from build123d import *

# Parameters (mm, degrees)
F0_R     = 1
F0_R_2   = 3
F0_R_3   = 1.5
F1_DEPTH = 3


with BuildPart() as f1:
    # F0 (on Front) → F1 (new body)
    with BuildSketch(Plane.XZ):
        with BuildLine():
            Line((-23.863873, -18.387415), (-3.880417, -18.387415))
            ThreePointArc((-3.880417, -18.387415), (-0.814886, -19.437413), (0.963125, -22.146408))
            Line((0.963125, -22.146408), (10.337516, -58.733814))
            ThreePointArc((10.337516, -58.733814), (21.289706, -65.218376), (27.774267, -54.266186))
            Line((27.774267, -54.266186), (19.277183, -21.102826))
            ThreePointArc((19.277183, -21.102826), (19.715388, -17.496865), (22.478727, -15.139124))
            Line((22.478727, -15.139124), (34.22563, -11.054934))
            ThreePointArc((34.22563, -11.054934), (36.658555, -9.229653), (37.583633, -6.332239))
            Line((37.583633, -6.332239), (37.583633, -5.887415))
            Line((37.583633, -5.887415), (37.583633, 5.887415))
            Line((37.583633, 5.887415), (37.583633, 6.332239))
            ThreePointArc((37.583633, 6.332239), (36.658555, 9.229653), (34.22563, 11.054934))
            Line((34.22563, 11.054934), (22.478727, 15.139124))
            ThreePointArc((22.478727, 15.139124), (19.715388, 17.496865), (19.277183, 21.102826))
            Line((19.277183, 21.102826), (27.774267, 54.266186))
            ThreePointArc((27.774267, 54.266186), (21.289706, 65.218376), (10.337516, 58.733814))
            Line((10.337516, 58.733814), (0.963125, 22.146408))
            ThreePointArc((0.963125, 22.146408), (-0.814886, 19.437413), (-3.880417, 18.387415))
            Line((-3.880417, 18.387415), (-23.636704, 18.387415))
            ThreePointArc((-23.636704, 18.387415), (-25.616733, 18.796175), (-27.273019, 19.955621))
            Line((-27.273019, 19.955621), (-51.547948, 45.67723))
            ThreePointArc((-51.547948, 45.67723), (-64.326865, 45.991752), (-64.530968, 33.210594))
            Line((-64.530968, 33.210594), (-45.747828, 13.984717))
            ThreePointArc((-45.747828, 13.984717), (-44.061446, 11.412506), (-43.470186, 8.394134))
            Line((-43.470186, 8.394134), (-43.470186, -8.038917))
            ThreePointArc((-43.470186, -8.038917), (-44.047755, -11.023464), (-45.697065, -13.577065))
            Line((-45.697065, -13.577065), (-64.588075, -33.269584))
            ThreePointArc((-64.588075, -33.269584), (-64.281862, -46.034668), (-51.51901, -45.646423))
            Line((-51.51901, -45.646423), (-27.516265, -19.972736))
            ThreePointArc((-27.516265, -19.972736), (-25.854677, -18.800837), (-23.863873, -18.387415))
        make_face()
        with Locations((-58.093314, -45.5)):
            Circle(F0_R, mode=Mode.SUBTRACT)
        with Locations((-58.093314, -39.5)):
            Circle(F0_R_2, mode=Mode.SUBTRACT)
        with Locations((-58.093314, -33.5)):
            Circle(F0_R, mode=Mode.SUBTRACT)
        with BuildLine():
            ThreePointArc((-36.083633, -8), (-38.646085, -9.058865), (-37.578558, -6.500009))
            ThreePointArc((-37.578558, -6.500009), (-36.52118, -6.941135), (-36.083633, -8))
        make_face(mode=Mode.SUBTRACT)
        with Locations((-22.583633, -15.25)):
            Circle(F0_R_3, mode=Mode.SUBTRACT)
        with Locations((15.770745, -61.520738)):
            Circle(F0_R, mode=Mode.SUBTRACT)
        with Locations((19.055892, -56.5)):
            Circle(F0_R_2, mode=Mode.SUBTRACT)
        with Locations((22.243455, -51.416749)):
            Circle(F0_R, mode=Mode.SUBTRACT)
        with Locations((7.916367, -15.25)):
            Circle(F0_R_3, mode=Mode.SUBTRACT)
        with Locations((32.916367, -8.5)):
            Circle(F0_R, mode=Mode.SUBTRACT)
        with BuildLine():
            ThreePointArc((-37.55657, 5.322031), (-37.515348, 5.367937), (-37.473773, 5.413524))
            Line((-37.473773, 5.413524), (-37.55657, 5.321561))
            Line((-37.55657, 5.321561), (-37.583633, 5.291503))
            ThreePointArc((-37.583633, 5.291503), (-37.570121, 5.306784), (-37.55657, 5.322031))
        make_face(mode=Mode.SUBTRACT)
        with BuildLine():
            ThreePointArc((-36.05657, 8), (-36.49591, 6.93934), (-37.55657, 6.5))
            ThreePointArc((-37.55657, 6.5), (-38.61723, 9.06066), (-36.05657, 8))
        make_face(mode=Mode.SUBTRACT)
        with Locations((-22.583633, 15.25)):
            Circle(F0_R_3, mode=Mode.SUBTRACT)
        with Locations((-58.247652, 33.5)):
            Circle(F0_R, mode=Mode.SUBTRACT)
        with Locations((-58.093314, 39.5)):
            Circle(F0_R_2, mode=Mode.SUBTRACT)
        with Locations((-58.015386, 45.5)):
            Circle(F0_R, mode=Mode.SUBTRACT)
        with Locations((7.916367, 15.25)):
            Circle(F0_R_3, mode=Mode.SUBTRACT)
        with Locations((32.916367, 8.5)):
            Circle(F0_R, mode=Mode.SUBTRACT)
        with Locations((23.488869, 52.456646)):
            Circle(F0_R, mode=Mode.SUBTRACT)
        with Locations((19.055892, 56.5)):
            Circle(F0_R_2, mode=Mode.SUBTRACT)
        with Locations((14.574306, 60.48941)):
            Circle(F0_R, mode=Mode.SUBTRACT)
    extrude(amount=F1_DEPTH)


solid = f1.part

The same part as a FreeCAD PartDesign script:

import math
import FreeCAD as App
import Part
import Sketcher

doc = App.newDocument("Part")
body = doc.addObject("PartDesign::Body", "Body")

# Sketch on XZ plane
sketch1 = doc.addObject("Sketcher::SketchObject", "Sketch")
body.addObject(sketch1)
sketch1.AttachmentSupport = (doc.XZ_Plane, [""])
sketch1.MapMode = "FlatFace"
sketch1.addGeometry(Part.LineSegment(App.Vector(-23.863873, -18.387415, 0), App.Vector(-3.880417, -18.387415, 0)), False)
sketch1.addGeometry(Part.ArcOfCircle(Part.Circle(App.Vector(-3.880418, -23.387416, 0), App.Vector(0, 0, 1), 5.000001), math.radians(14.371113), math.radians(89.999989)), False)
sketch1.addGeometry(Part.LineSegment(App.Vector(0.963125, -22.146408, 0), App.Vector(10.337516, -58.733814, 0)), False)
sketch1.addGeometry(Part.ArcOfCircle(Part.Circle(App.Vector(19.055892, -56.500001, 0), App.Vector(0, 0, 1), 9), math.radians(-165.628889), math.radians(14.371119)), False)
sketch1.addGeometry(Part.LineSegment(App.Vector(27.774267, -54.266186, 0), App.Vector(19.277183, -21.102826, 0)), False)
sketch1.addGeometry(Part.ArcOfCircle(Part.Circle(App.Vector(24.120725, -19.861818, 0), App.Vector(0, 0, 1), 5), math.radians(109.171669), math.radians(194.371112)), False)
sketch1.addGeometry(Part.LineSegment(App.Vector(22.478727, -15.139124, 0), App.Vector(34.22563, -11.054934, 0)), False)
sketch1.addGeometry(Part.ArcOfCircle(Part.Circle(App.Vector(32.583631, -6.332238, 0), App.Vector(0, 0, 1), 5.000002), math.radians(-70.828331), math.radians(-0.000012)), False)
sketch1.addGeometry(Part.LineSegment(App.Vector(37.583633, -6.332239, 0), App.Vector(37.583633, 6.332239, 0)), False)
sketch1.addGeometry(Part.ArcOfCircle(Part.Circle(App.Vector(32.583631, 6.332238, 0), App.Vector(0, 0, 1), 5.000002), math.radians(0.000012), math.radians(70.828331)), False)
sketch1.addGeometry(Part.LineSegment(App.Vector(34.22563, 11.054934, 0), App.Vector(22.478727, 15.139124, 0)), False)
sketch1.addGeometry(Part.ArcOfCircle(Part.Circle(App.Vector(24.120725, 19.861818, 0), App.Vector(0, 0, 1), 5), math.radians(165.628888), math.radians(250.828331)), False)
sketch1.addGeometry(Part.LineSegment(App.Vector(19.277183, 21.102826, 0), App.Vector(27.774267, 54.266186, 0)), False)
sketch1.addGeometry(Part.ArcOfCircle(Part.Circle(App.Vector(19.055892, 56.500001, 0), App.Vector(0, 0, 1), 9), math.radians(-14.371119), math.radians(165.628889)), False)
sketch1.addGeometry(Part.LineSegment(App.Vector(10.337516, 58.733814, 0), App.Vector(0.963125, 22.146408, 0)), False)
sketch1.addGeometry(Part.ArcOfCircle(Part.Circle(App.Vector(-3.880418, 23.387416, 0), App.Vector(0, 0, 1), 5.000001), math.radians(-89.999989), math.radians(-14.371113)), False)
sketch1.addGeometry(Part.LineSegment(App.Vector(-3.880417, 18.387415, 0), App.Vector(-23.636704, 18.387415, 0)), False)
sketch1.addGeometry(Part.ArcOfCircle(Part.Circle(App.Vector(-23.636704, 23.387414, 0), App.Vector(0, 0, 1), 4.999999), math.radians(-136.657444), math.radians(-89.999998)), False)
sketch1.addGeometry(Part.LineSegment(App.Vector(-27.273019, 19.955621, 0), App.Vector(-51.547948, 45.67723, 0)), False)
sketch1.addGeometry(Part.ArcOfCircle(Part.Circle(App.Vector(-58.093315, 39.499999, 0), App.Vector(0, 0, 1), 9), math.radians(43.342574), math.radians(224.332635)), False)
sketch1.addGeometry(Part.LineSegment(App.Vector(-64.530968, 33.210594, 0), App.Vector(-45.747828, 13.984717, 0)), False)
sketch1.addGeometry(Part.ArcOfCircle(Part.Circle(App.Vector(-51.470187, 8.394133, 0), App.Vector(0, 0, 1), 8.000001), math.radians(0.000004), math.radians(44.332636)), False)
sketch1.addGeometry(Part.LineSegment(App.Vector(-43.470186, 8.394134, 0), App.Vector(-43.470186, -8.038917, 0)), False)
sketch1.addGeometry(Part.ArcOfCircle(Part.Circle(App.Vector(-51.470188, -8.038917, 0), App.Vector(0, 0, 1), 8.000002), math.radians(-43.809936), math.radians(0.000001)), False)
sketch1.addGeometry(Part.LineSegment(App.Vector(-45.697065, -13.577065, 0), App.Vector(-64.588075, -33.269584, 0)), False)
sketch1.addGeometry(Part.ArcOfCircle(Part.Circle(App.Vector(-58.093315, -39.5, 0), App.Vector(0, 0, 1), 9), math.radians(136.190051), math.radians(316.92651)), False)
sketch1.addGeometry(Part.LineSegment(App.Vector(-51.51901, -45.646423, 0), App.Vector(-27.516265, -19.972736, 0)), False)
sketch1.addGeometry(Part.ArcOfCircle(Part.Circle(App.Vector(-23.863872, -23.387417, 0), App.Vector(0, 0, 1), 5.000002), math.radians(90.000009), math.radians(136.926506)), False)
sketch1.addGeometry(Part.Circle(App.Vector(-58.093314, -45.5, 0), App.Vector(0, 0, 1), 1), False)
sketch1.addGeometry(Part.Circle(App.Vector(-58.093314, -39.5, 0), App.Vector(0, 0, 1), 3), False)
sketch1.addGeometry(Part.Circle(App.Vector(-58.093314, -33.5, 0), App.Vector(0, 0, 1), 1), False)
sketch1.addGeometry(Part.ArcOfCircle(Part.Circle(App.Vector(-37.583631, -7.999999, 0), App.Vector(0, 0, 1), 1.499998), math.radians(-0.000056), math.radians(89.806221)), False)
sketch1.addGeometry(Part.ArcOfCircle(Part.Circle(App.Vector(-37.583633, -8, 0), App.Vector(0, 0, 1), 1.5), math.radians(89.806157), math.radians(360.000008)), False)
sketch1.addGeometry(Part.Circle(App.Vector(-22.583633, -15.25, 0), App.Vector(0, 0, 1), 1.5), False)
sketch1.addGeometry(Part.Circle(App.Vector(15.770745, -61.520738, 0), App.Vector(0, 0, 1), 1), False)
sketch1.addGeometry(Part.Circle(App.Vector(19.055892, -56.5, 0), App.Vector(0, 0, 1), 3), False)
sketch1.addGeometry(Part.Circle(App.Vector(22.243455, -51.416749, 0), App.Vector(0, 0, 1), 1), False)
sketch1.addGeometry(Part.Circle(App.Vector(7.916367, -15.25, 0), App.Vector(0, 0, 1), 1.5), False)
sketch1.addGeometry(Part.Circle(App.Vector(32.916367, -8.5, 0), App.Vector(0, 0, 1), 1), False)
sketch1.addGeometry(Part.ArcOfCircle(Part.Circle(App.Vector(-31.552095, -0.028182, 0), App.Vector(0, 0, 1), 8.042294), math.radians(138.297763), math.radians(138.588411)), False)
sketch1.addGeometry(Part.ArcOfCircle(Part.Circle(App.Vector(-31.583058, -0.000515, 0), App.Vector(0, 0, 1), 8.000772), math.radians(137.414501), math.radians(138.298176)), False)
sketch1.addGeometry(Part.LineSegment(App.Vector(-37.473773, 5.413524, 0), App.Vector(-37.55657, 5.321561, 0)), False)
sketch1.addGeometry(Part.LineSegment(App.Vector(-37.55657, 5.321561, 0), App.Vector(-37.583633, 5.291503, 0)), False)
sketch1.addGeometry(Part.ArcOfCircle(Part.Circle(App.Vector(-37.55657, 8, 0), App.Vector(0, 0, 1), 1.5), math.radians(0.000004), math.radians(269.999996)), False)
sketch1.addGeometry(Part.ArcOfCircle(Part.Circle(App.Vector(-37.556571, 8.000001, 0), App.Vector(0, 0, 1), 1.500001), math.radians(-89.999978), math.radians(-0.000022)), False)
sketch1.addGeometry(Part.Circle(App.Vector(-22.583633, 15.25, 0), App.Vector(0, 0, 1), 1.5), False)
sketch1.addGeometry(Part.Circle(App.Vector(-58.247652, 33.5, 0), App.Vector(0, 0, 1), 1), False)
sketch1.addGeometry(Part.Circle(App.Vector(-58.093314, 39.5, 0), App.Vector(0, 0, 1), 3), False)
sketch1.addGeometry(Part.Circle(App.Vector(-58.015386, 45.5, 0), App.Vector(0, 0, 1), 1), False)
sketch1.addGeometry(Part.Circle(App.Vector(7.916367, 15.25, 0), App.Vector(0, 0, 1), 1.5), False)
sketch1.addGeometry(Part.Circle(App.Vector(32.916367, 8.5, 0), App.Vector(0, 0, 1), 1), False)
sketch1.addGeometry(Part.Circle(App.Vector(14.574306, 60.48941, 0), App.Vector(0, 0, 1), 1), False)
sketch1.addGeometry(Part.Circle(App.Vector(19.055892, 56.5, 0), App.Vector(0, 0, 1), 3), False)
sketch1.addGeometry(Part.Circle(App.Vector(23.488869, 52.456646, 0), App.Vector(0, 0, 1), 1), False)
sketch1.addConstraint(Sketcher.Constraint("Coincident", 0, 2, 1, 2))
sketch1.addConstraint(Sketcher.Constraint("Coincident", 1, 1, 2, 1))
sketch1.addConstraint(Sketcher.Constraint("Coincident", 2, 2, 3, 1))
sketch1.addConstraint(Sketcher.Constraint("Coincident", 3, 2, 4, 1))
sketch1.addConstraint(Sketcher.Constraint("Coincident", 4, 2, 5, 2))
sketch1.addConstraint(Sketcher.Constraint("Coincident", 5, 1, 6, 1))
sketch1.addConstraint(Sketcher.Constraint("Coincident", 6, 2, 7, 1))
sketch1.addConstraint(Sketcher.Constraint("Coincident", 7, 2, 8, 1))
sketch1.addConstraint(Sketcher.Constraint("Coincident", 8, 2, 9, 1))
sketch1.addConstraint(Sketcher.Constraint("Coincident", 9, 2, 10, 1))
sketch1.addConstraint(Sketcher.Constraint("Coincident", 10, 2, 11, 2))
sketch1.addConstraint(Sketcher.Constraint("Coincident", 11, 1, 12, 1))
sketch1.addConstraint(Sketcher.Constraint("Coincident", 12, 2, 13, 1))
sketch1.addConstraint(Sketcher.Constraint("Coincident", 13, 2, 14, 1))
sketch1.addConstraint(Sketcher.Constraint("Coincident", 14, 2, 15, 2))
sketch1.addConstraint(Sketcher.Constraint("Coincident", 15, 1, 16, 1))
sketch1.addConstraint(Sketcher.Constraint("Coincident", 16, 2, 17, 2))
sketch1.addConstraint(Sketcher.Constraint("Coincident", 17, 1, 18, 1))
sketch1.addConstraint(Sketcher.Constraint("Coincident", 18, 2, 19, 1))
sketch1.addConstraint(Sketcher.Constraint("Coincident", 19, 2, 20, 1))
sketch1.addConstraint(Sketcher.Constraint("Coincident", 20, 2, 21, 2))
sketch1.addConstraint(Sketcher.Constraint("Coincident", 21, 1, 22, 1))
sketch1.addConstraint(Sketcher.Constraint("Coincident", 22, 2, 23, 2))
sketch1.addConstraint(Sketcher.Constraint("Coincident", 23, 1, 24, 1))
sketch1.addConstraint(Sketcher.Constraint("Coincident", 24, 2, 25, 1))
sketch1.addConstraint(Sketcher.Constraint("Coincident", 25, 2, 26, 1))
sketch1.addConstraint(Sketcher.Constraint("Coincident", 26, 2, 27, 2))
sketch1.addConstraint(Sketcher.Constraint("Coincident", 27, 1, 0, 1))
sketch1.addConstraint(Sketcher.Constraint("Coincident", 31, 1, 32, 2))
sketch1.addConstraint(Sketcher.Constraint("Coincident", 32, 1, 31, 2))
sketch1.addConstraint(Sketcher.Constraint("Coincident", 39, 1, 40, 2))
sketch1.addConstraint(Sketcher.Constraint("Coincident", 40, 1, 41, 1))
sketch1.addConstraint(Sketcher.Constraint("Coincident", 41, 2, 42, 1))
sketch1.addConstraint(Sketcher.Constraint("Coincident", 42, 2, 39, 2))
sketch1.addConstraint(Sketcher.Constraint("Coincident", 43, 1, 44, 2))
sketch1.addConstraint(Sketcher.Constraint("Coincident", 44, 1, 43, 2))
sketch1.addConstraint(Sketcher.Constraint("Horizontal", 0))
sketch1.addConstraint(Sketcher.Constraint("Vertical", 8))
sketch1.addConstraint(Sketcher.Constraint("Horizontal", 16))
sketch1.addConstraint(Sketcher.Constraint("Vertical", 22))
sketch1.addConstraint(Sketcher.Constraint("Coincident", 29, 3, 25, 3))
sketch1.addConstraint(Sketcher.Constraint("Coincident", 35, 3, 3, 3))
sketch1.addConstraint(Sketcher.Constraint("Coincident", 47, 3, 19, 3))
sketch1.addConstraint(Sketcher.Constraint("Coincident", 52, 3, 13, 3))
sketch1.addConstraint(Sketcher.Constraint("Diameter", 28, 2.0))
sketch1.addConstraint(Sketcher.Constraint("Diameter", 29, 6.0))
sketch1.addConstraint(Sketcher.Constraint("Diameter", 30, 2.0))
sketch1.addConstraint(Sketcher.Constraint("Diameter", 33, 3.0))
sketch1.addConstraint(Sketcher.Constraint("Diameter", 34, 2.0))
sketch1.addConstraint(Sketcher.Constraint("Diameter", 35, 6.0))
sketch1.addConstraint(Sketcher.Constraint("Diameter", 36, 2.0))
sketch1.addConstraint(Sketcher.Constraint("Diameter", 37, 3.0))
sketch1.addConstraint(Sketcher.Constraint("Diameter", 38, 2.0))
sketch1.addConstraint(Sketcher.Constraint("Diameter", 45, 3.0))
sketch1.addConstraint(Sketcher.Constraint("Diameter", 46, 2.0))
sketch1.addConstraint(Sketcher.Constraint("Diameter", 47, 6.0))
sketch1.addConstraint(Sketcher.Constraint("Diameter", 48, 2.0))
sketch1.addConstraint(Sketcher.Constraint("Diameter", 49, 3.0))
sketch1.addConstraint(Sketcher.Constraint("Diameter", 50, 2.0))
sketch1.addConstraint(Sketcher.Constraint("Diameter", 51, 2.0))
sketch1.addConstraint(Sketcher.Constraint("Diameter", 52, 6.0))
sketch1.addConstraint(Sketcher.Constraint("Diameter", 53, 2.0))
sketch1.addConstraint(Sketcher.Constraint("Radius", 1, 5.000001))
sketch1.addConstraint(Sketcher.Constraint("Radius", 3, 9.0))
sketch1.addConstraint(Sketcher.Constraint("Radius", 5, 5.0))
sketch1.addConstraint(Sketcher.Constraint("Radius", 7, 5.000002))
sketch1.addConstraint(Sketcher.Constraint("Radius", 9, 5.000002))
sketch1.addConstraint(Sketcher.Constraint("Radius", 11, 5.0))
sketch1.addConstraint(Sketcher.Constraint("Radius", 13, 9.0))
sketch1.addConstraint(Sketcher.Constraint("Radius", 15, 5.000001))
sketch1.addConstraint(Sketcher.Constraint("Radius", 17, 4.999999))
sketch1.addConstraint(Sketcher.Constraint("Radius", 19, 9.0))
sketch1.addConstraint(Sketcher.Constraint("Radius", 21, 8.000001))
sketch1.addConstraint(Sketcher.Constraint("Radius", 23, 8.000002))
sketch1.addConstraint(Sketcher.Constraint("Radius", 25, 9.0))
sketch1.addConstraint(Sketcher.Constraint("Radius", 27, 5.000002))
sketch1.addConstraint(Sketcher.Constraint("Radius", 31, 1.499998))
sketch1.addConstraint(Sketcher.Constraint("Radius", 32, 1.5))
sketch1.addConstraint(Sketcher.Constraint("Radius", 43, 1.5))
sketch1.addConstraint(Sketcher.Constraint("Radius", 44, 1.500001))
sketch1.addConstraint(Sketcher.Constraint("DistanceY", 31, 3, -1, 1, 7.999999))
sketch1.addConstraint(Sketcher.Constraint("DistanceY", -1, 1, 43, 3, 8.0))
sketch1.addConstraint(Sketcher.Constraint("DistanceY", 31, 1, -1, 1, 8.0))
sketch1.addConstraint(Sketcher.Constraint("DistanceY", -1, 1, 43, 1, 8.0))
sketch1.addConstraint(Sketcher.Constraint("DistanceY", 3, 3, -1, 1, 56.500001))
sketch1.addConstraint(Sketcher.Constraint("DistanceY", -1, 1, 13, 3, 56.500001))
sketch1.addConstraint(Sketcher.Constraint("DistanceY", -1, 1, 19, 3, 39.499999))
sketch1.addConstraint(Sketcher.Constraint("DistanceY", 25, 3, -1, 1, 39.5))
sketch1.addConstraint(Sketcher.Constraint("DistanceY", 28, 3, -1, 1, 45.5))
sketch1.addConstraint(Sketcher.Constraint("DistanceY", 30, 3, -1, 1, 33.5))
sketch1.addConstraint(Sketcher.Constraint("DistanceY", 38, 3, -1, 1, 8.5))
sketch1.addConstraint(Sketcher.Constraint("DistanceY", -1, 1, 46, 3, 33.5))
sketch1.addConstraint(Sketcher.Constraint("DistanceY", -1, 1, 48, 3, 45.5))
sketch1.addConstraint(Sketcher.Constraint("DistanceY", -1, 1, 50, 3, 8.5))
sketch1.addConstraint(Sketcher.Constraint("DistanceY", 33, 3, -1, 1, 15.25))
sketch1.addConstraint(Sketcher.Constraint("DistanceY", 37, 3, -1, 1, 15.25))
sketch1.addConstraint(Sketcher.Constraint("DistanceY", -1, 1, 45, 3, 15.25))
sketch1.addConstraint(Sketcher.Constraint("DistanceY", -1, 1, 49, 3, 15.25))
sketch1.addConstraint(Sketcher.Constraint("Radius", 40, 8.000772))
sketch1.addConstraint(Sketcher.Constraint("Radius", 39, 8.042294))
sketch1.addConstraint(Sketcher.Constraint("DistanceY", 8, 1, 8, 2, 12.664478))
sketch1.addConstraint(Sketcher.Constraint("DistanceY", 22, 2, 22, 1, 16.433051))
sketch1.addConstraint(Sketcher.Constraint("Distance", 24, 27.288561))
sketch1.addConstraint(Sketcher.Constraint("DistanceX", 0, 1, 0, 2, 19.983456))
sketch1.addConstraint(Sketcher.Constraint("DistanceX", 16, 2, 16, 1, 19.756287))
sketch1.addConstraint(Sketcher.Constraint("DistanceX", -1, 1, 3, 3, 19.055892))
sketch1.addConstraint(Sketcher.Constraint("DistanceY", 5, 3, -1, 1, 19.861818))
sketch1.addConstraint(Sketcher.Constraint("DistanceX", -1, 1, 7, 3, 32.583631))
sketch1.addConstraint(Sketcher.Constraint("DistanceY", -1, 1, 11, 3, 19.861818))
sketch1.addConstraint(Sketcher.Constraint("DistanceX", -1, 1, 13, 3, 19.055892))
sketch1.addConstraint(Sketcher.Constraint("DistanceX", 31, 3, -1, 1, 37.583631))
sketch1.addConstraint(Sketcher.Constraint("DistanceY", 36, 3, -1, 1, 51.416749))
sketch1.addConstraint(Sketcher.Constraint("DistanceY", 39, 3, -1, 1, 0.028182))
sketch1.addConstraint(Sketcher.Constraint("DistanceX", 43, 3, -1, 1, 37.55657))
sketch1.addConstraint(Sketcher.Constraint("DistanceY", -1, 1, 51, 3, 60.48941))
sketch1.addConstraint(Sketcher.Constraint("DistanceX", -1, 1, 53, 3, 23.488869))
sketch1.addConstraint(Sketcher.Constraint("DistanceY", 1, 1, -1, 1, 22.146408))
sketch1.addConstraint(Sketcher.Constraint("DistanceX", -1, 1, 6, 2, 34.22563))
sketch1.addConstraint(Sketcher.Constraint("DistanceY", 7, 2, -1, 1, 6.332239))
sketch1.addConstraint(Sketcher.Constraint("DistanceX", -1, 1, 9, 2, 34.22563))
sketch1.addConstraint(Sketcher.Constraint("DistanceY", -1, 1, 14, 2, 22.146408))
sketch1.addConstraint(Sketcher.Constraint("DistanceX", 17, 1, -1, 1, 27.273019))
sketch1.addConstraint(Sketcher.Constraint("DistanceY", -1, 1, 17, 1, 19.955621))
sketch1.addConstraint(Sketcher.Constraint("DistanceY", -1, 1, 18, 2, 45.67723))
sketch1.addConstraint(Sketcher.Constraint("DistanceX", 25, 2, -1, 1, 51.51901))
sketch1.addConstraint(Sketcher.Constraint("DistanceX", 32, 1, -1, 1, 37.578558))
sketch1.addConstraint(Sketcher.Constraint("DistanceX", 39, 1, -1, 1, 37.55657))
sketch1.addConstraint(Sketcher.Constraint("DistanceY", -1, 1, 39, 1, 5.322031))
sketch1.addConstraint(Sketcher.Constraint("DistanceX", 41, 2, -1, 1, 37.55657))
sketch1.addConstraint(Sketcher.Constraint("DistanceY", -1, 1, 41, 2, 5.321561))
sketch1.addConstraint(Sketcher.Constraint("DistanceX", 44, 1, -1, 1, 37.55657))
sketch1.addConstraint(Sketcher.Constraint("Distance", 2, 37.769266))
sketch1.addConstraint(Sketcher.Constraint("Distance", 4, 34.234615))
sketch1.addConstraint(Sketcher.Constraint("Distance", 6, 12.436653))
sketch1.addConstraint(Sketcher.Constraint("Distance", 10, 12.436653))
sketch1.addConstraint(Sketcher.Constraint("Distance", 12, 34.234615))
sketch1.addConstraint(Sketcher.Constraint("Distance", 14, 37.769266))
sketch1.addConstraint(Sketcher.Constraint("Distance", 18, 35.367688))
sketch1.addConstraint(Sketcher.Constraint("Distance", 20, 26.878257))
sketch1.addConstraint(Sketcher.Constraint("Distance", 26, 35.146408))
sketch1.addConstraint(Sketcher.Constraint("Distance", 41, 0.123744))
sketch1.addConstraint(Sketcher.Constraint("Distance", 42, 0.040446))
sketch1.addConstraint(Sketcher.Constraint("DistanceX", 1, 3, -1, 1, 3.880418))
sketch1.addConstraint(Sketcher.Constraint("DistanceY", 1, 3, -1, 1, 23.387416))
sketch1.addConstraint(Sketcher.Constraint("DistanceX", -1, 1, 5, 3, 24.120725))
sketch1.addConstraint(Sketcher.Constraint("DistanceY", 7, 3, -1, 1, 6.332238))
sketch1.addConstraint(Sketcher.Constraint("DistanceY", -1, 1, 9, 3, 6.332238))
sketch1.addConstraint(Sketcher.Constraint("DistanceX", -1, 1, 11, 3, 24.120725))
sketch1.addConstraint(Sketcher.Constraint("DistanceX", 15, 3, -1, 1, 3.880418))
sketch1.addConstraint(Sketcher.Constraint("DistanceY", -1, 1, 15, 3, 23.387416))
sketch1.addConstraint(Sketcher.Constraint("DistanceX", 21, 3, -1, 1, 51.470187))
sketch1.addConstraint(Sketcher.Constraint("DistanceY", -1, 1, 21, 3, 8.394133))
sketch1.addConstraint(Sketcher.Constraint("DistanceY", 23, 3, -1, 1, 8.038917))
sketch1.addConstraint(Sketcher.Constraint("DistanceX", 25, 3, -1, 1, 58.093315))
sketch1.addConstraint(Sketcher.Constraint("DistanceX", 27, 3, -1, 1, 23.863872))
sketch1.addConstraint(Sketcher.Constraint("DistanceX", 28, 3, -1, 1, 58.093314))
sketch1.addConstraint(Sketcher.Constraint("DistanceX", 30, 3, -1, 1, 58.093314))
sketch1.addConstraint(Sketcher.Constraint("DistanceX", 33, 3, -1, 1, 22.583633))
sketch1.addConstraint(Sketcher.Constraint("DistanceX", -1, 1, 34, 3, 15.770745))
sketch1.addConstraint(Sketcher.Constraint("DistanceY", 34, 3, -1, 1, 61.520738))
sketch1.addConstraint(Sketcher.Constraint("DistanceX", -1, 1, 36, 3, 22.243455))
sketch1.addConstraint(Sketcher.Constraint("DistanceX", -1, 1, 37, 3, 7.916367))
sketch1.addConstraint(Sketcher.Constraint("DistanceX", -1, 1, 38, 3, 32.916367))
sketch1.addConstraint(Sketcher.Constraint("DistanceX", 40, 3, -1, 1, 31.583058))
sketch1.addConstraint(Sketcher.Constraint("DistanceX", 45, 3, -1, 1, 22.583633))
sketch1.addConstraint(Sketcher.Constraint("DistanceX", 46, 3, -1, 1, 58.247652))
sketch1.addConstraint(Sketcher.Constraint("DistanceX", 48, 3, -1, 1, 58.015386))
sketch1.addConstraint(Sketcher.Constraint("DistanceX", -1, 1, 49, 3, 7.916367))
sketch1.addConstraint(Sketcher.Constraint("DistanceX", -1, 1, 50, 3, 32.916367))
sketch1.addConstraint(Sketcher.Constraint("DistanceX", -1, 1, 51, 3, 14.574306))
sketch1.addConstraint(Sketcher.Constraint("DistanceY", -1, 1, 53, 3, 52.456646))
sketch1.addConstraint(Sketcher.Constraint("DistanceX", 0, 2, -1, 1, 3.880417))
sketch1.addConstraint(Sketcher.Constraint("DistanceX", -1, 1, 3, 2, 27.774267))
sketch1.addConstraint(Sketcher.Constraint("DistanceX", -1, 1, 11, 1, 19.277183))
sketch1.addConstraint(Sketcher.Constraint("DistanceX", 15, 1, -1, 1, 3.880417))
sketch1.addConstraint(Sketcher.Constraint("DistanceX", 19, 2, -1, 1, 64.530968))
sketch1.addConstraint(Sketcher.Constraint("DistanceY", -1, 1, 21, 1, 8.394134))
sketch1.addConstraint(Sketcher.Constraint("DistanceX", 23, 1, -1, 1, 45.697065))
pad1 = doc.addObject("PartDesign::Pad", "Pad")
body.addObject(pad1)
pad1.Profile = sketch1
pad1.Length = 3

doc.recompute()
